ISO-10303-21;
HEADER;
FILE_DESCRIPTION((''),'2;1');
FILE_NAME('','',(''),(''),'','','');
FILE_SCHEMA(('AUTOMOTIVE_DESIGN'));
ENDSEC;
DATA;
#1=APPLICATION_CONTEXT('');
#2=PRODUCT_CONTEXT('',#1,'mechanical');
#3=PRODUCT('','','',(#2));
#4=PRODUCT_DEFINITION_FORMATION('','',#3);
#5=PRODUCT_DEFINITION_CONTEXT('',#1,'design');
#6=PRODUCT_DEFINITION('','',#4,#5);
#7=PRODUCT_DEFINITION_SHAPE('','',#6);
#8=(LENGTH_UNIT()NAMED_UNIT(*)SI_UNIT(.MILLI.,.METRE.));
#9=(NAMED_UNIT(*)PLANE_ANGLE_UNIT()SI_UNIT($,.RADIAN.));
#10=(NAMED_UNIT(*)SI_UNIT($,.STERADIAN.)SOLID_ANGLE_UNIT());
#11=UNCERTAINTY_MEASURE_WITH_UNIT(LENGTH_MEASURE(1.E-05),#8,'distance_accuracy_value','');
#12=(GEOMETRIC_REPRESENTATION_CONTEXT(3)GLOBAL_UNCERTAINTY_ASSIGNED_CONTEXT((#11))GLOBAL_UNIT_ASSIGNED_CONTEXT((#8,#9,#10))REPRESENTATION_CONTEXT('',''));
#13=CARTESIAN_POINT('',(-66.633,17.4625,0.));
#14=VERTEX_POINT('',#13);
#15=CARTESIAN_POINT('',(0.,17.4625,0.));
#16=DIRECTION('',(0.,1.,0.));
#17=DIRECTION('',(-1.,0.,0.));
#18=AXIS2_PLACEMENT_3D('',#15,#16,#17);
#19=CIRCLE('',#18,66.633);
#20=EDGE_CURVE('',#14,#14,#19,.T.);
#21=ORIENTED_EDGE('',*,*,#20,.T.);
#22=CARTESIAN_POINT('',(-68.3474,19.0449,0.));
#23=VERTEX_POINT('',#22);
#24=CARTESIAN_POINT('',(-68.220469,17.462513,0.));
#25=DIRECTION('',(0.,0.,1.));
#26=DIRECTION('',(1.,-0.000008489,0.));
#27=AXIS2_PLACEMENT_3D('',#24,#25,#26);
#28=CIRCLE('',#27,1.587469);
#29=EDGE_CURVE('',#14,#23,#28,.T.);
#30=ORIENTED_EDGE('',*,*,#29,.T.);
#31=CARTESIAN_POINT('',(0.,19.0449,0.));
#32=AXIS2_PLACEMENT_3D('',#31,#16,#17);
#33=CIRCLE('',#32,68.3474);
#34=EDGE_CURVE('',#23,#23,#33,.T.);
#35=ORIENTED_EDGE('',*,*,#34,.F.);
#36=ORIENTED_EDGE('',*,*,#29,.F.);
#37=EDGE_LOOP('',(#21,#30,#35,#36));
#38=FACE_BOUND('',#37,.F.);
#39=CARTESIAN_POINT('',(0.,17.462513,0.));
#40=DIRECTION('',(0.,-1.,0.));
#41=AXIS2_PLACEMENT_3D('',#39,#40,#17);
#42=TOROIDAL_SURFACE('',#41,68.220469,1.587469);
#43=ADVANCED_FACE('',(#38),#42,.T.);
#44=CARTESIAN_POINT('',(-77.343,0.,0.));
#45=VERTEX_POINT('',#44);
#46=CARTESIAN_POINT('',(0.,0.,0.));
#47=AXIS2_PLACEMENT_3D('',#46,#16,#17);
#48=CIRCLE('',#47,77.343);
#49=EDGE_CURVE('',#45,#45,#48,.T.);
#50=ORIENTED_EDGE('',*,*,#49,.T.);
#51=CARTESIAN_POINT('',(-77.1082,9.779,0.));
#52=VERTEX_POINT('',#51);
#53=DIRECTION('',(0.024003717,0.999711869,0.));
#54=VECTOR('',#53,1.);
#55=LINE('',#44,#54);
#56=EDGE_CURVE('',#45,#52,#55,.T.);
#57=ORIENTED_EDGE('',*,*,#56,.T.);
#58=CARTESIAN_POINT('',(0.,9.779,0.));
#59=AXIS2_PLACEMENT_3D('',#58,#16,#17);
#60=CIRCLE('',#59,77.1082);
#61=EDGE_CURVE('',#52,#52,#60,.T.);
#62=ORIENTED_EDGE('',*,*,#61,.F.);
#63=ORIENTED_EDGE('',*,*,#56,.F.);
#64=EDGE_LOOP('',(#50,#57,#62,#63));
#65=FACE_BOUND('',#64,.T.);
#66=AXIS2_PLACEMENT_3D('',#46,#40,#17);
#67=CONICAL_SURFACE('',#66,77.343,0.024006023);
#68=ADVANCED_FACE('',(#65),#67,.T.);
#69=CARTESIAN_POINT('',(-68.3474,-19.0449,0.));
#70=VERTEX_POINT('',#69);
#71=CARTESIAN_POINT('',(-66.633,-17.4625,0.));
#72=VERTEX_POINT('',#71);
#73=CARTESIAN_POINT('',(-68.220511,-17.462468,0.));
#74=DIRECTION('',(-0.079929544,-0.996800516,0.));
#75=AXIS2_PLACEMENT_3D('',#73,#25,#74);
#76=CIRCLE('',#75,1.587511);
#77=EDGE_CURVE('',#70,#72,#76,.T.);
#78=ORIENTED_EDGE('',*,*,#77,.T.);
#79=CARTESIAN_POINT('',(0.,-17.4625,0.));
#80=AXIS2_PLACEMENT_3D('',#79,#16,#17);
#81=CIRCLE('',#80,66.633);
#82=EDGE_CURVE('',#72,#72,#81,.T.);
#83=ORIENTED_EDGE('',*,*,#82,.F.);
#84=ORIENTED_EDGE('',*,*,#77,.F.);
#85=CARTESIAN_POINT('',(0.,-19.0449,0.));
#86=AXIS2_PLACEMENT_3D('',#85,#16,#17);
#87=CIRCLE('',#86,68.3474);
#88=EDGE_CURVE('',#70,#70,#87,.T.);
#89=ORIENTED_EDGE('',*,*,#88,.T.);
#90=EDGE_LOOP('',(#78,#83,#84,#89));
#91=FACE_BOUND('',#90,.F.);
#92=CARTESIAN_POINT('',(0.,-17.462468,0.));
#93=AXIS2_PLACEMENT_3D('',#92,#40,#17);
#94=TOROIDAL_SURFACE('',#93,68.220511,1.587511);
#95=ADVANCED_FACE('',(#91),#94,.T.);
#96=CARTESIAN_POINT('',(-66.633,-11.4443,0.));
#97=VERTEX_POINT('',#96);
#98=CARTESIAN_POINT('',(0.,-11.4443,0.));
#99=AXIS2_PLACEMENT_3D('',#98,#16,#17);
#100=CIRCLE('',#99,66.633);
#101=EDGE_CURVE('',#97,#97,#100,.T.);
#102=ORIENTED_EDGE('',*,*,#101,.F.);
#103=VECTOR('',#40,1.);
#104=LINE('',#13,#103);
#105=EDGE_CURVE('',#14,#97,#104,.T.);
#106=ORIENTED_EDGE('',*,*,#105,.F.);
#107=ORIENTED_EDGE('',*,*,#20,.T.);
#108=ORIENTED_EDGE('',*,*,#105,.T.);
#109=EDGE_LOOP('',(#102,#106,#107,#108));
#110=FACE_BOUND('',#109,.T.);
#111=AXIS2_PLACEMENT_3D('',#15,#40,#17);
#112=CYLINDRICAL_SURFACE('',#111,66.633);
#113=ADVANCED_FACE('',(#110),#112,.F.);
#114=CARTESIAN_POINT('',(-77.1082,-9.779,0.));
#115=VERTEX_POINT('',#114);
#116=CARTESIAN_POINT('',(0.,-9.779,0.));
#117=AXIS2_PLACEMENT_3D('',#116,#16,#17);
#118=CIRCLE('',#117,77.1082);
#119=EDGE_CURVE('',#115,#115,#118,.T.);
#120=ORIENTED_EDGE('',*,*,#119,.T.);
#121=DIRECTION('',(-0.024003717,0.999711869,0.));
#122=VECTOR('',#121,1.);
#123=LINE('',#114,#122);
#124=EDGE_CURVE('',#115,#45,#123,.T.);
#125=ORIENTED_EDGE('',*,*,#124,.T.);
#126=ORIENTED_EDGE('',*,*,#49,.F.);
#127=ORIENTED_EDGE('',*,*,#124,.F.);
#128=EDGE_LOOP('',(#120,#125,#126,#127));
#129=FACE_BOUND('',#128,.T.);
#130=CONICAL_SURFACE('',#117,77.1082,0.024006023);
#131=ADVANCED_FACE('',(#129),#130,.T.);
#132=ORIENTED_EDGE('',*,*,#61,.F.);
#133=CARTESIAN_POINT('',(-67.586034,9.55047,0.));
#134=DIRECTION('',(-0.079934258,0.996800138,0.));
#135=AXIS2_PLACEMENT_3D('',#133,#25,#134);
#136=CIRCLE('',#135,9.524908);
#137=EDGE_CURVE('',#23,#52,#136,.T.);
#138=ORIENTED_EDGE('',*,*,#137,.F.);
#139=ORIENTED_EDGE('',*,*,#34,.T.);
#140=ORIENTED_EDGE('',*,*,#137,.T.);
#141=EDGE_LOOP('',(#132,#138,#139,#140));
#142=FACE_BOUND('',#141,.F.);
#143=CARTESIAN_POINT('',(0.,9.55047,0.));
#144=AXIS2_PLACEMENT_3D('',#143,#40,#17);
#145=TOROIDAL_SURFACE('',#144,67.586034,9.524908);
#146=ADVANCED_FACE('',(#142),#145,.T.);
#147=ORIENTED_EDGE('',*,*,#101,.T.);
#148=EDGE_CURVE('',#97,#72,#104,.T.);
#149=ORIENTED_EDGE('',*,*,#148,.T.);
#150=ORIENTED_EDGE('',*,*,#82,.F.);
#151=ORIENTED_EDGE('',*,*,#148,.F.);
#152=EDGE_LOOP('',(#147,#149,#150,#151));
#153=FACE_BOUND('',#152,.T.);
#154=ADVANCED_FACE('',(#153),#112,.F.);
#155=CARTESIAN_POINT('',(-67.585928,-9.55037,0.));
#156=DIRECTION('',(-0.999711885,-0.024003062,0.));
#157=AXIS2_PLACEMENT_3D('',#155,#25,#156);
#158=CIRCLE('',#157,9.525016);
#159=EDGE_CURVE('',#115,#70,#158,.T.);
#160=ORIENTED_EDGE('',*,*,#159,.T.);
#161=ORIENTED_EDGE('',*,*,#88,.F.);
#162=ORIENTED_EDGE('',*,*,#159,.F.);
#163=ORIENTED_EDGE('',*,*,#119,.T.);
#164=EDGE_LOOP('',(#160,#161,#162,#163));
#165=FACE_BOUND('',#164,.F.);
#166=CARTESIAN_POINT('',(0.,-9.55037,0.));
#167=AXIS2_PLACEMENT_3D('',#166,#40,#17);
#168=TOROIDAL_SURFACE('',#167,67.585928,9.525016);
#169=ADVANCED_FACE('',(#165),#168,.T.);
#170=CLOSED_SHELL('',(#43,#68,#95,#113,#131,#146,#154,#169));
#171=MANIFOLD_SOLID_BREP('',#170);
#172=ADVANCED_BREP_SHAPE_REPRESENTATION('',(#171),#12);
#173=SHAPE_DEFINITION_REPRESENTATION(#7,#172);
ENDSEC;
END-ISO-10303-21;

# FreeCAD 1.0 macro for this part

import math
import FreeCAD as App
import Part
import Sketcher
Q = App.Units.Quantity

doc = App.newDocument("Part")
params = doc.addObject("Spreadsheet::Sheet", "Params")
for row, (alias, value) in enumerate([
    ("sketch1_radius", "0.375 in"),
    ("sketch1_radius2", "0.0625 in"),
    ("sketch1_height", "1.375 in"),
    ("revolution_angle", "360 deg"),
], start=1):
    params.set(f"A{row}", alias)
    params.set(f"B{row}", "=" + value)
    params.setAlias(f"B{row}", alias)

body = doc.addObject("PartDesign::Body", "Body")

sketch1 = body.newObject("Sketcher::SketchObject", "Sketch")
sketch1.AttachmentSupport = (doc.getObject("XY_Plane"), [""])
sketch1.MapMode = "FlatFace"
sketch1.addGeometry([
    Part.ArcOfCircle(Part.Circle(App.Vector(-67.6, -9.6, 0), App.Vector(0, 0, 1), 9.5), math.radians(-179), math.radians(-95)),
    Part.ArcOfCircle(Part.Circle(App.Vector(-68.2, -17.5, 0), App.Vector(0, 0, 1), 1.6), math.radians(-95), math.radians(0)),
    Part.LineSegment(App.Vector(-66.6, -17.5, 0), App.Vector(-66.6, 17.5, 0)),
    Part.ArcOfCircle(Part.Circle(App.Vector(-68.2, 17.5, 0), App.Vector(0, 0, 1), 1.6), math.radians(0), math.radians(95)),
    Part.ArcOfCircle(Part.Circle(App.Vector(-67.6, 9.6, 0), App.Vector(0, 0, 1), 9.5), math.radians(95), math.radians(179)),
    Part.LineSegment(App.Vector(-77.1, 9.8, 0), App.Vector(-77.3, 0, 0)),
    Part.LineSegment(App.Vector(-77.3, 0, 0), App.Vector(-77.1, -9.8, 0)),
], False)
sketch1.addConstraint([
    Sketcher.Constraint("Tangent", 0, 2, 1, 1),
    Sketcher.Constraint("Tangent", 1, 2, 2, 1),
    Sketcher.Constraint("Tangent", 2, 2, 3, 1),
    Sketcher.Constraint("Tangent", 3, 2, 4, 1),
    Sketcher.Constraint("Tangent", 4, 2, 5, 1),
    Sketcher.Constraint("Coincident", 5, 2, 6, 1),
    Sketcher.Constraint("Tangent", 6, 2, 0, 1),
    Sketcher.Constraint("Vertical", 2),
    Sketcher.Constraint("Equal", 1, 3),
    Sketcher.Constraint("Equal", 0, 4),
    Sketcher.Constraint("Symmetric", 0, 3, 4, 3, -1),
    Sketcher.Constraint("PointOnObject", 5, 2, -1),
    Sketcher.Constraint("Radius", 0, Q("0.375 in")),
    Sketcher.Constraint("Radius", 1, Q("0.0625 in")),
    Sketcher.Constraint("DistanceX", 5, 2, -1, 1, Q("3.045 in")),
    Sketcher.Constraint("DistanceY", 2, 1, 2, 2, Q("1.375 in")),
    Sketcher.Constraint("DistanceY", 0, 3, -1, 1, Q("0.376 in")),
    Sketcher.Constraint("DistanceY", -1, 1, 4, 2, Q("0.385 in")),
])
sketch1.setExpression("Constraints[12]", "Params.sketch1_radius")
sketch1.setExpression("Constraints[13]", "Params.sketch1_radius2")
sketch1.setExpression("Constraints[15]", "Params.sketch1_height")
revolution = body.newObject("PartDesign::Revolution", "Revolution")
revolution.Profile = sketch1
revolution.ReferenceAxis = (sketch1, ["V_Axis"])
revolution.setExpression("Angle", "Params.revolution_angle")

doc.recompute()
